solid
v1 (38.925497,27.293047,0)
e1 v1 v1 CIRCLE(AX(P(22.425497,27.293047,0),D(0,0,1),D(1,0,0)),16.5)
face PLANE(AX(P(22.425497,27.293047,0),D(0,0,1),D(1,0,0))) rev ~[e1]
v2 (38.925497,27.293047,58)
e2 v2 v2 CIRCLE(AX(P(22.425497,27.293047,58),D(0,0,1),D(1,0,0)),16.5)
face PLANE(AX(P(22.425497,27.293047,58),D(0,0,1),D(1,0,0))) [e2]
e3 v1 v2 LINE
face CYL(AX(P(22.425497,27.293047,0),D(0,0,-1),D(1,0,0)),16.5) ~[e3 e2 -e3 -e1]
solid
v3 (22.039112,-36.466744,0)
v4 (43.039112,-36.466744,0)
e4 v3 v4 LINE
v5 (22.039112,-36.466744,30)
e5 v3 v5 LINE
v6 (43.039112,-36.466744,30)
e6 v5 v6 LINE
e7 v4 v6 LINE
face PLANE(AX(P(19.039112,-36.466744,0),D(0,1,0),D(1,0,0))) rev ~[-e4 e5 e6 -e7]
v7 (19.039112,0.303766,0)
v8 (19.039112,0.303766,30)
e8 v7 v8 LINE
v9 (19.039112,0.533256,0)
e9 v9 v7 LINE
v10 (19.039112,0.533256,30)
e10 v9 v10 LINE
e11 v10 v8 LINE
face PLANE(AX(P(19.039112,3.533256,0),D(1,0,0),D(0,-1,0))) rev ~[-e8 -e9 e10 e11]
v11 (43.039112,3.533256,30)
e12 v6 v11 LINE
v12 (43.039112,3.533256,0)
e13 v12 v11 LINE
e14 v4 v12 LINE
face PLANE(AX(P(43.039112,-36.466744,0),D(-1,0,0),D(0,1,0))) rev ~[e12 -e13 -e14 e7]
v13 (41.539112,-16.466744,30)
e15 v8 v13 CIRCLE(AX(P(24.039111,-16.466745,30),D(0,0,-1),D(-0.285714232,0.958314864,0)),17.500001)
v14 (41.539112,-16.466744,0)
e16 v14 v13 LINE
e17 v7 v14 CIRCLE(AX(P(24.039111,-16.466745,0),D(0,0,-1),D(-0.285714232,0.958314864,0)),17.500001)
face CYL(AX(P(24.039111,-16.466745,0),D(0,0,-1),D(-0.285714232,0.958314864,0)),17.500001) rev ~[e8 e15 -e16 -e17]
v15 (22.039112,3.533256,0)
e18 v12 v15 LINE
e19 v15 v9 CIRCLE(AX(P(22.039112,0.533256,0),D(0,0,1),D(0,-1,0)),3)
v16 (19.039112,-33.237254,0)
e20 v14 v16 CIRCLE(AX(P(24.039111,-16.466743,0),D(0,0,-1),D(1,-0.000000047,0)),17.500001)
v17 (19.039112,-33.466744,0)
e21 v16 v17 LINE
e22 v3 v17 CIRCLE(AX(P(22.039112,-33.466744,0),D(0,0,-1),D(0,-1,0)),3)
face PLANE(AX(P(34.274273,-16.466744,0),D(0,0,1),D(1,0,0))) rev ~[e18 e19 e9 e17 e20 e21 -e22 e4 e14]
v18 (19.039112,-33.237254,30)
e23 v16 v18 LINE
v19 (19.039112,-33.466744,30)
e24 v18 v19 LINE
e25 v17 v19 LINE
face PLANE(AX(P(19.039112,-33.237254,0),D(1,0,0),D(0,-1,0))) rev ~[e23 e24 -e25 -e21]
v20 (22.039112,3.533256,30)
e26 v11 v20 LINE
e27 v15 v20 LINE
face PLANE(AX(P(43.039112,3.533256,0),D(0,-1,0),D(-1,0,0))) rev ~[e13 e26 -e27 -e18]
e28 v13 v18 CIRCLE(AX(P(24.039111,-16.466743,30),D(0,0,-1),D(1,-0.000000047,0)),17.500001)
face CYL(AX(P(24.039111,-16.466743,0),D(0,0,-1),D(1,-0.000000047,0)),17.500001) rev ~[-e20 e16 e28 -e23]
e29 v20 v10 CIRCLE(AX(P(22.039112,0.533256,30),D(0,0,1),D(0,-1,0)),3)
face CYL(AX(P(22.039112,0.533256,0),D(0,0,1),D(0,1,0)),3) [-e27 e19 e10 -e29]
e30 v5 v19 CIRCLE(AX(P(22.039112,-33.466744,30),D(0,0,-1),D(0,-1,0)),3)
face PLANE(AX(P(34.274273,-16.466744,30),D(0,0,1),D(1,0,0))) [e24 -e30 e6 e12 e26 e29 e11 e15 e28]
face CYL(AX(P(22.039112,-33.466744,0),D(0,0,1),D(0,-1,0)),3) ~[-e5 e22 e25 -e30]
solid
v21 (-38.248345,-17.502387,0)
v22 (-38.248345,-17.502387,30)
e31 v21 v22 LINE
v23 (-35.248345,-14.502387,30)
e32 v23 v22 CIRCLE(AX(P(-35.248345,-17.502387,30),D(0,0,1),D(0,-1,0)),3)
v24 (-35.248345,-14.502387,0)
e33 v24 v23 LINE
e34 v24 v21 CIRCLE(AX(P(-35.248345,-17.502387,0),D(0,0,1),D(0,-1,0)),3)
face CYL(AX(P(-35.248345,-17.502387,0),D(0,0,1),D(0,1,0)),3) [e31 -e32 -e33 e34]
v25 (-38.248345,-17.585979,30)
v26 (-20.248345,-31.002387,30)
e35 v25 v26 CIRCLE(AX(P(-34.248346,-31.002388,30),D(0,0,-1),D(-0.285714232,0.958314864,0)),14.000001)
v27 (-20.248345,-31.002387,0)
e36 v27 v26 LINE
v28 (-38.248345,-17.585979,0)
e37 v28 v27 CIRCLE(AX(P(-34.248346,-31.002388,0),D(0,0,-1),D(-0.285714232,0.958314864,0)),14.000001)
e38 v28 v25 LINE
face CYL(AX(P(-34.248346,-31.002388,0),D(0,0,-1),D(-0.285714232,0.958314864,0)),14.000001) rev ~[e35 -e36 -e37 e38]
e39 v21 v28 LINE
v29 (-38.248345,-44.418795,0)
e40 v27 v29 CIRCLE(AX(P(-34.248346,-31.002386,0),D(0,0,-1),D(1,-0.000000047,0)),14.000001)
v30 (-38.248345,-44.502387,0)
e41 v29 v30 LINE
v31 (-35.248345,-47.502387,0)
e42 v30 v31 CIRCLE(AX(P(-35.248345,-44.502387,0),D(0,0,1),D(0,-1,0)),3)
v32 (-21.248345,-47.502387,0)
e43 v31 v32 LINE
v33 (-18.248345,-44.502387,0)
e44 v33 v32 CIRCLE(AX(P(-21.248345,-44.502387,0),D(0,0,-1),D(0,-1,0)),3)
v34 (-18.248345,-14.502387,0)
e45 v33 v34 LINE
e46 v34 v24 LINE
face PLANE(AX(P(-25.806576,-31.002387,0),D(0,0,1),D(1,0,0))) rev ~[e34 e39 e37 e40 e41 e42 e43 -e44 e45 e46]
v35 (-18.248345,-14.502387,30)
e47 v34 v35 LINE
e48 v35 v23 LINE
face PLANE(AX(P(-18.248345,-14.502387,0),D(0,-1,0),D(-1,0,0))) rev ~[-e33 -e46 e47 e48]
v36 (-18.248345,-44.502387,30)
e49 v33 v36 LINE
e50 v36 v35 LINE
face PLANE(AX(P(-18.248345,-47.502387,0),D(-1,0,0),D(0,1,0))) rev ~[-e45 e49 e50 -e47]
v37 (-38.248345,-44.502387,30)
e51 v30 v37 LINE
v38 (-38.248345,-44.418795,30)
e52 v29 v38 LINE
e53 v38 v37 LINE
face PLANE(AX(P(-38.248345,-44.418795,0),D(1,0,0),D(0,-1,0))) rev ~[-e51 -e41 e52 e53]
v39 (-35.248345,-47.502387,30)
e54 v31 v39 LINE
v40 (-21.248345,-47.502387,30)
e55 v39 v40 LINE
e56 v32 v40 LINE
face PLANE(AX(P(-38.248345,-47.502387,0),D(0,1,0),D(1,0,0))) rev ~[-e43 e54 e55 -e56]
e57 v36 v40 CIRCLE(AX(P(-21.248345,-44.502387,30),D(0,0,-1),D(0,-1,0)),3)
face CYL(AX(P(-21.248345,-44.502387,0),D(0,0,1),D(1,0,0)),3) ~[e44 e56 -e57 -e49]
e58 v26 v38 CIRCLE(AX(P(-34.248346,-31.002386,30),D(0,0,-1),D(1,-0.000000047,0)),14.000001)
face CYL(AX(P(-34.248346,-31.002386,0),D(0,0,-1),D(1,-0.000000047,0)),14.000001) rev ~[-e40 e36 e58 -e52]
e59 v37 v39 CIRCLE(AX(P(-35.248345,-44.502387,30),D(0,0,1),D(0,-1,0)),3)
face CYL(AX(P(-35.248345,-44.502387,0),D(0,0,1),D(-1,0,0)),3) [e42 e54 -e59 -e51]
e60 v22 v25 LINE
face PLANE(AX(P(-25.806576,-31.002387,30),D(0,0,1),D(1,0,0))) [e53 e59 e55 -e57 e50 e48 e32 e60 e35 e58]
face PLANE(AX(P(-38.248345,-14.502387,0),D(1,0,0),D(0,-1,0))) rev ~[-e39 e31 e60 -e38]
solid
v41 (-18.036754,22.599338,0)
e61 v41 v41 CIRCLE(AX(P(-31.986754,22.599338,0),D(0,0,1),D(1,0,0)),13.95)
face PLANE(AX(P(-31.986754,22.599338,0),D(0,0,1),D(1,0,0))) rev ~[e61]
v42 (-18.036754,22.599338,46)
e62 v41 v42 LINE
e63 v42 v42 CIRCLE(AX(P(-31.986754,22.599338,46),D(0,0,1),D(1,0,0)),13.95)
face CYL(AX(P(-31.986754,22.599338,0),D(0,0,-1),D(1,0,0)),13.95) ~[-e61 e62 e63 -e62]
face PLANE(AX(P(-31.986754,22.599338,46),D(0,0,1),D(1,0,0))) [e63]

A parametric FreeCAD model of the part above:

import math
import FreeCAD as App
import Part
import Sketcher

V = App.Vector
Q = App.Units.Quantity


def edges_at(feature, points):
    """Names of the edges that pass closest to the given points."""
    edges = feature.Shape.Edges
    near = lambda p: min(range(len(edges)), key=lambda i: edges[i].distToShape(Part.Vertex(*p))[0])
    return sorted({f"Edge{near(p) + 1}" for p in points})

doc = App.newDocument("Part")
body = doc.addObject("PartDesign::Body", "Body")

# Sketch on XY plane
sketch1 = body.newObject("Sketcher::SketchObject", "Sketch")
sketch1.AttachmentSupport = (doc.getObject("XY_Plane"), [""])
sketch1.MapMode = "FlatFace"
sketch1.addGeometry(Part.Circle(V(-32, 23, 0), V(0, 0, 1), 14), False)
sketch1.addConstraint([
    Sketcher.Constraint("Diameter", 0, Q("27.9 mm")),
    Sketcher.Constraint("DistanceX", 0, 3, -1, 1, Q("31.986754 mm")),
    Sketcher.Constraint("DistanceY", -1, 1, 0, 3, Q("22.599338 mm")),
])
pad1 = body.newObject("PartDesign::Pad", "Pad")
pad1.Profile = sketch1
pad1.Length = 46
body2 = doc.addObject("PartDesign::Body", "Body001")

# Sketch on XY plane
sketch2 = body2.newObject("Sketcher::SketchObject", "Sketch001")
sketch2.AttachmentSupport = (doc.getObject("XY_Plane001"), [""])
sketch2.MapMode = "FlatFace"
sketch2.addGeometry(Part.Circle(V(22, 27, 0), V(0, 0, 1), 16), False)
sketch2.addConstraint([
    Sketcher.Constraint("Diameter", 0, Q("33 mm")),
    Sketcher.Constraint("DistanceX", -1, 1, 0, 3, Q("22.425497 mm")),
    Sketcher.Constraint("DistanceY", -1, 1, 0, 3, Q("27.293047 mm")),
])
pad2 = body2.newObject("PartDesign::Pad", "Pad001")
pad2.Profile = sketch2
pad2.Length = 58
body3 = doc.addObject("PartDesign::Body", "Body002")
body3.AllowCompound = True

# Sketch on XY plane
sketch3 = body3.newObject("Sketcher::SketchObject", "Sketch002")
sketch3.AttachmentSupport = (doc.getObject("XY_Plane002"), [""])
sketch3.MapMode = "FlatFace"
sketch3.addGeometry([
    Part.LineSegment(V(19, -36.5, 0), V(43, -36.5, 0)),  # 0
    Part.LineSegment(V(43, -36.5, 0), V(43, 3.5, 0)),  # 1
    Part.LineSegment(V(43, 3.5, 0), V(19, 3.5, 0)),  # 2
    Part.LineSegment(V(19, 3.5, 0), V(19, 0.3, 0)),  # 3
    Part.ArcOfCircle(Part.Circle(V(24, -16.5, 0), V(0, 0, 1), 17.5), math.radians(0), math.radians(107)),  # 4
    Part.ArcOfCircle(Part.Circle(V(24, -16.5, 0), V(0, 0, 1), 17.5), math.radians(-107), math.radians(0)),  # 5
    Part.LineSegment(V(19, -33.2, 0), V(19, -36.5, 0)),  # 6
    Part.LineSegment(V(-18.2, -14.5, 0), V(-38.2, -14.5, 0)),  # 7
    Part.LineSegment(V(-38.2, -14.5, 0), V(-38.2, -17.6, 0)),  # 8
    Part.ArcOfCircle(Part.Circle(V(-34.2, -31, 0), V(0, 0, 1), 14), math.radians(0), math.radians(107)),  # 9
    Part.ArcOfCircle(Part.Circle(V(-34.2, -31, 0), V(0, 0, 1), 14), math.radians(-107), math.radians(0)),  # 10
    Part.LineSegment(V(-38.2, -44.4, 0), V(-38.2, -47.5, 0)),  # 11
    Part.LineSegment(V(-38.2, -47.5, 0), V(-18.2, -47.5, 0)),  # 12
    Part.LineSegment(V(-18.2, -47.5, 0), V(-18.2, -14.5, 0)),  # 13
], False)
sketch3.addConstraint([
    Sketcher.Constraint("Coincident", 0, 2, 1, 1),
    Sketcher.Constraint("Coincident", 1, 2, 2, 1),
    Sketcher.Constraint("Coincident", 2, 2, 3, 1),
    Sketcher.Constraint("Coincident", 3, 2, 4, 2),
    Sketcher.Constraint("Tangent", 4, 1, 5, 2),
    Sketcher.Constraint("Coincident", 5, 1, 6, 1),
    Sketcher.Constraint("Coincident", 6, 2, 0, 1),
    Sketcher.Constraint("Coincident", 7, 2, 8, 1),
    Sketcher.Constraint("Coincident", 8, 2, 9, 2),
    Sketcher.Constraint("Tangent", 9, 1, 10, 2),
    Sketcher.Constraint("Coincident", 10, 1, 11, 1),
    Sketcher.Constraint("Coincident", 11, 2, 12, 1),
    Sketcher.Constraint("Coincident", 12, 2, 13, 1),
    Sketcher.Constraint("Coincident", 13, 2, 7, 1),
    Sketcher.Constraint("Horizontal", 0),
    Sketcher.Constraint("Vertical", 1),
    Sketcher.Constraint("Horizontal", 2),
    Sketcher.Constraint("Vertical", 3),
    Sketcher.Constraint("Vertical", 6),
    Sketcher.Constraint("Horizontal", 7),
    Sketcher.Constraint("Vertical", 8),
    Sketcher.Constraint("Vertical", 11),
    Sketcher.Constraint("Horizontal", 12),
    Sketcher.Constraint("Vertical", 13),
    Sketcher.Constraint("Equal", 4, 5),
    Sketcher.Constraint("Equal", 9, 10),
    Sketcher.Constraint("Horizontal", 5, 3, 4, 1),
    Sketcher.Constraint("Horizontal", 10, 3, 9, 1),
    Sketcher.Constraint("Vertical", 3, 2, 5, 1),
    Sketcher.Constraint("Vertical", 8, 2, 10, 1),
    Sketcher.Constraint("Equal", 3, 6),
    Sketcher.Constraint("Equal", 8, 11),
    Sketcher.Constraint("Radius", 9, Q("14.000001 mm")),
    Sketcher.Constraint("Radius", 4, Q("17.500001 mm")),
    Sketcher.Constraint("DistanceX", 0, 1, 0, 2, Q("24 mm")),
    Sketcher.Constraint("DistanceX", 7, 2, 7, 1, Q("20 mm")),
    Sketcher.Constraint("DistanceY", 1, 1, 1, 2, Q("40 mm")),
    Sketcher.Constraint("DistanceY", 13, 1, 13, 2, Q("33 mm")),
    Sketcher.Constraint("DistanceX", 4, 3, 0, 2, Q("19.000001 mm")),
    Sketcher.Constraint("DistanceX", 7, 2, 10, 3, Q("3.999999 mm")),
    Sketcher.Constraint("DistanceX", -1, 1, 4, 3, Q("24.039111 mm")),
    Sketcher.Constraint("DistanceY", 8, 2, -1, 1, Q("17.585979 mm")),
    Sketcher.Constraint("DistanceY", 10, 3, 4, 3, Q("14.535642 mm")),
    Sketcher.Constraint("DistanceX", 9, 3, -1, 1, Q("34.248346 mm")),
])
pad3 = body3.newObject("PartDesign::Pad", "Pad002")
pad3.Profile = sketch3
pad3.Length = 30
doc.recompute()

fillet = body3.newObject("PartDesign::Fillet", "Fillet")
fillet.Base = (pad3, edges_at(pad3, [
    (-38.248, -47.502, 15),
    (-38.248, -14.502, 15),
    (19.039, 3.533, 15),
    (19.039, -36.467, 15),
]))
fillet.Radius = 3
doc.recompute()

fillet2 = body3.newObject("PartDesign::Fillet", "Fillet001")
fillet2.Base = (fillet, edges_at(fillet, [(-18.248, -47.502, 15)]))
fillet2.Radius = 3

doc.recompute()
